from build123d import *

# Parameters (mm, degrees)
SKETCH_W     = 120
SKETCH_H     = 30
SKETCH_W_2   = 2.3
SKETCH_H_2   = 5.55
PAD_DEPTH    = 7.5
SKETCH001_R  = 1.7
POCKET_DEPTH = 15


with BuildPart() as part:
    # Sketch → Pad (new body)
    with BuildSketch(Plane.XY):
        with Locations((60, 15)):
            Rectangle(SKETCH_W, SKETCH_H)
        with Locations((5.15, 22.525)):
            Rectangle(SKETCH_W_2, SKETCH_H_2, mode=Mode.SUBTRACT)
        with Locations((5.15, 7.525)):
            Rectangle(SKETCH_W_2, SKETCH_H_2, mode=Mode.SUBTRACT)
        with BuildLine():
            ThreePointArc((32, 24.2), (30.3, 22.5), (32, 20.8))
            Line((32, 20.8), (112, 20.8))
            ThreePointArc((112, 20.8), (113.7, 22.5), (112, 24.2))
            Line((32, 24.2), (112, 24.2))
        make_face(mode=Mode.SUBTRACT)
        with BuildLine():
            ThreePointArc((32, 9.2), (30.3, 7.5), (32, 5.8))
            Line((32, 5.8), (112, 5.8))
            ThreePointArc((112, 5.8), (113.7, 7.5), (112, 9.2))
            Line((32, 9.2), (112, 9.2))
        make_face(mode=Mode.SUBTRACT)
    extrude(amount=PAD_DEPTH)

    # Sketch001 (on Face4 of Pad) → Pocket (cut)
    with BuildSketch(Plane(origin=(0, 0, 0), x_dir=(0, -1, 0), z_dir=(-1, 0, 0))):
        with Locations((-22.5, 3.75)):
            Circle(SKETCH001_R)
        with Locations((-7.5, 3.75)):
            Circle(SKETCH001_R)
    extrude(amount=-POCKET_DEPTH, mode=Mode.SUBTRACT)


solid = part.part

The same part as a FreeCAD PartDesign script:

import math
import FreeCAD as App
import Part
import Sketcher
from FreeCAD import Vector
Q = App.Units.Quantity

doc = App.newDocument("Part")
params = doc.addObject("Spreadsheet::Sheet", "Params")
for row, (alias, value) in enumerate([
    ("sketch1_radius", "1.7 mm"),
    ("sketch1_width", "120 mm"),
    ("sketch1_width2", "80 mm"),
    ("sketch1_height", "30 mm"),
    ("sketch1_width3", "2.3 mm"),
    ("pad1_length", "7.5 mm"),
    ("sketch2_diameter", "3.4 mm"),
    ("pocket1_length", "15 mm"),
], start=1):
    params.set(f"A{row}", alias)
    params.set(f"B{row}", "=" + value)
    params.setAlias(f"B{row}", alias)

body = doc.addObject("PartDesign::Body", "Body")

# Sketch on XY plane
sketch1 = body.newObject("Sketcher::SketchObject", "Sketch")
sketch1.AttachmentSupport = (doc.getObject("XY_Plane"), [""])
sketch1.MapMode = "FlatFace"
sketch1.addGeometry(Part.LineSegment(Vector(0, 30, 0), Vector(0, 0, 0)), False)
sketch1.addGeometry(Part.LineSegment(Vector(0, 0, 0), Vector(120, 0, 0)), False)
sketch1.addGeometry(Part.LineSegment(Vector(120, 0, 0), Vector(120, 30, 0)), False)
sketch1.addGeometry(Part.LineSegment(Vector(120, 30, 0), Vector(0, 30, 0)), False)
sketch1.addGeometry(Part.LineSegment(Vector(6.3, 4.8, 0), Vector(4, 4.8, 0)), False)
sketch1.addGeometry(Part.LineSegment(Vector(4, 4.8, 0), Vector(4, 10.3, 0)), False)
sketch1.addGeometry(Part.LineSegment(Vector(4, 10.3, 0), Vector(6.3, 10.3, 0)), False)
sketch1.addGeometry(Part.LineSegment(Vector(6.3, 10.3, 0), Vector(6.3, 4.8, 0)), False)
sketch1.addGeometry(Part.ArcOfCircle(Part.Circle(Vector(32, 7.5, 0), Vector(0, 0, 1), 1.7), math.radians(90), math.radians(270)), False)
sketch1.addGeometry(Part.LineSegment(Vector(32, 9.2, 0), Vector(112, 9.2, 0)), False)
sketch1.addGeometry(Part.ArcOfCircle(Part.Circle(Vector(112, 7.5, 0), Vector(0, 0, 1), 1.7), math.radians(-90), math.radians(90)), False)
sketch1.addGeometry(Part.LineSegment(Vector(112, 5.8, 0), Vector(32, 5.8, 0)), False)
sketch1.addGeometry(Part.LineSegment(Vector(6.3, 19.8, 0), Vector(4, 19.8, 0)), False)
sketch1.addGeometry(Part.LineSegment(Vector(4, 19.8, 0), Vector(4, 25.3, 0)), False)
sketch1.addGeometry(Part.LineSegment(Vector(4, 25.3, 0), Vector(6.3, 25.3, 0)), False)
sketch1.addGeometry(Part.LineSegment(Vector(6.3, 25.3, 0), Vector(6.3, 19.8, 0)), False)
sketch1.addGeometry(Part.ArcOfCircle(Part.Circle(Vector(32, 22.5, 0), Vector(0, 0, 1), 1.7), math.radians(90), math.radians(270)), False)
sketch1.addGeometry(Part.LineSegment(Vector(32, 24.2, 0), Vector(112, 24.2, 0)), False)
sketch1.addGeometry(Part.ArcOfCircle(Part.Circle(Vector(112, 22.5, 0), Vector(0, 0, 1), 1.7), math.radians(-90), math.radians(90)), False)
sketch1.addGeometry(Part.LineSegment(Vector(112, 20.8, 0), Vector(32, 20.8, 0)), False)
sketch1.addConstraint(Sketcher.Constraint("Coincident", 0, 2, 1, 1))
sketch1.addConstraint(Sketcher.Constraint("Coincident", 1, 2, 2, 1))
sketch1.addConstraint(Sketcher.Constraint("Coincident", 2, 2, 3, 1))
sketch1.addConstraint(Sketcher.Constraint("Coincident", 3, 2, 0, 1))
sketch1.addConstraint(Sketcher.Constraint("Coincident", 4, 2, 5, 1))
sketch1.addConstraint(Sketcher.Constraint("Coincident", 5, 2, 6, 1))
sketch1.addConstraint(Sketcher.Constraint("Coincident", 6, 2, 7, 1))
sketch1.addConstraint(Sketcher.Constraint("Coincident", 7, 2, 4, 1))
sketch1.addConstraint(Sketcher.Constraint("Tangent", 8, 1, 9, 1))
sketch1.addConstraint(Sketcher.Constraint("Tangent", 9, 2, 10, 2))
sketch1.addConstraint(Sketcher.Constraint("Tangent", 10, 1, 11, 1))
sketch1.addConstraint(Sketcher.Constraint("Tangent", 11, 2, 8, 2))
sketch1.addConstraint(Sketcher.Constraint("Coincident", 12, 2, 13, 1))
sketch1.addConstraint(Sketcher.Constraint("Coincident", 13, 2, 14, 1))
sketch1.addConstraint(Sketcher.Constraint("Coincident", 14, 2, 15, 1))
sketch1.addConstraint(Sketcher.Constraint("Coincident", 15, 2, 12, 1))
sketch1.addConstraint(Sketcher.Constraint("Tangent", 16, 1, 17, 1))
sketch1.addConstraint(Sketcher.Constraint("Tangent", 17, 2, 18, 2))
sketch1.addConstraint(Sketcher.Constraint("Tangent", 18, 1, 19, 1))
sketch1.addConstraint(Sketcher.Constraint("Tangent", 19, 2, 16, 2))
sketch1.addConstraint(Sketcher.Constraint("Vertical", 0))
sketch1.addConstraint(Sketcher.Constraint("Horizontal", 1))
sketch1.addConstraint(Sketcher.Constraint("Vertical", 2))
sketch1.addConstraint(Sketcher.Constraint("Horizontal", 3))
sketch1.addConstraint(Sketcher.Constraint("Horizontal", 4))
sketch1.addConstraint(Sketcher.Constraint("Vertical", 5))
sketch1.addConstraint(Sketcher.Constraint("Horizontal", 6))
sketch1.addConstraint(Sketcher.Constraint("Vertical", 7))
sketch1.addConstraint(Sketcher.Constraint("Horizontal", 9))
sketch1.addConstraint(Sketcher.Constraint("Horizontal", 11))
sketch1.addConstraint(Sketcher.Constraint("Horizontal", 12))
sketch1.addConstraint(Sketcher.Constraint("Vertical", 13))
sketch1.addConstraint(Sketcher.Constraint("Horizontal", 14))
sketch1.addConstraint(Sketcher.Constraint("Vertical", 15))
sketch1.addConstraint(Sketcher.Constraint("Horizontal", 17))
sketch1.addConstraint(Sketcher.Constraint("Horizontal", 19))
sketch1.addConstraint(Sketcher.Constraint("Coincident", 0, 2, -1, 1))
sketch1.addConstraint(Sketcher.Constraint("Equal", 10, 16))
sketch1.addConstraint(Sketcher.Constraint("Vertical", 8, 3, 16, 3))
sketch1.addConstraint(Sketcher.Constraint("Vertical", 10, 3, 18, 3))
sketch1.addConstraint(Sketcher.Constraint("Vertical", 5, 2, 12, 2))
sketch1.addConstraint(Sketcher.Constraint("Vertical", 7, 2, 14, 2))
sketch1.addConstraint(Sketcher.Constraint("Equal", 7, 13))
sketch1.addConstraint(Sketcher.Constraint("Radius", 8, Q("1.7 mm")))
sketch1.addConstraint(Sketcher.Constraint("DistanceX", 1, 1, 1, 2, Q("120 mm")))
sketch1.addConstraint(Sketcher.Constraint("DistanceX", 9, 1, 9, 2, Q("80 mm")))
sketch1.addConstraint(Sketcher.Constraint("DistanceY", 0, 2, 0, 1, Q("30 mm")))
sketch1.addConstraint(Sketcher.Constraint("DistanceX", 4, 2, 4, 1, Q("2.3 mm")))
sketch1.addConstraint(Sketcher.Constraint("DistanceX", -1, 1, 8, 3, Q("32 mm")))
sketch1.addConstraint(Sketcher.Constraint("DistanceX", -1, 1, 4, 2, Q("4 mm")))
sketch1.addConstraint(Sketcher.Constraint("DistanceY", 8, 3, 16, 3, Q("15 mm")))
sketch1.addConstraint(Sketcher.Constraint("DistanceY", 4, 2, 12, 2, Q("15 mm")))
sketch1.addConstraint(Sketcher.Constraint("DistanceY", 5, 1, 5, 2, Q("5.55 mm")))
sketch1.addConstraint(Sketcher.Constraint("DistanceY", -1, 1, 8, 3, Q("7.5 mm")))
sketch1.addConstraint(Sketcher.Constraint("DistanceY", -1, 1, 5, 2, Q("10.3 mm")))
sketch1.setExpression("Constraints[43]", "Params.sketch1_radius")
sketch1.setExpression("Constraints[44]", "Params.sketch1_width")
sketch1.setExpression("Constraints[45]", "Params.sketch1_width2")
sketch1.setExpression("Constraints[46]", "Params.sketch1_height")
sketch1.setExpression("Constraints[47]", "Params.sketch1_width3")
pad1 = body.newObject("PartDesign::Pad", "Pad")
pad1.Profile = sketch1
pad1.setExpression("Length", "Params.pad1_length")

# Sketch on YZ plane
sketch2 = body.newObject("Sketcher::SketchObject", "Sketch001")
sketch2.AttachmentSupport = (doc.getObject("YZ_Plane"), [""])
sketch2.MapMode = "FlatFace"
sketch2.addGeometry(Part.Circle(Vector(22.5, 3.8, 0), Vector(0, 0, 1), 1.7), False)
sketch2.addGeometry(Part.Circle(Vector(7.5, 3.8, 0), Vector(0, 0, 1), 1.7), False)
sketch2.addConstraint(Sketcher.Constraint("Equal", 0, 1))
sketch2.addConstraint(Sketcher.Constraint("Horizontal", 0, 3, 1, 3))
sketch2.addConstraint(Sketcher.Constraint("Diameter", 0, Q("3.4 mm")))
sketch2.addConstraint(Sketcher.Constraint("DistanceX", 1, 3, 0, 3, Q("15 mm")))
sketch2.addConstraint(Sketcher.Constraint("DistanceX", -1, 1, 0, 3, Q("22.5 mm")))
sketch2.addConstraint(Sketcher.Constraint("DistanceY", -1, 1, 0, 3, Q("3.75 mm")))
sketch2.setExpression("Constraints[2]", "Params.sketch2_diameter")
pocket1 = body.newObject("PartDesign::Pocket", "Pocket")
pocket1.Profile = sketch2
pocket1.setExpression("Length", "Params.pocket1_length")
pocket1.Reversed = True

doc.recompute()
